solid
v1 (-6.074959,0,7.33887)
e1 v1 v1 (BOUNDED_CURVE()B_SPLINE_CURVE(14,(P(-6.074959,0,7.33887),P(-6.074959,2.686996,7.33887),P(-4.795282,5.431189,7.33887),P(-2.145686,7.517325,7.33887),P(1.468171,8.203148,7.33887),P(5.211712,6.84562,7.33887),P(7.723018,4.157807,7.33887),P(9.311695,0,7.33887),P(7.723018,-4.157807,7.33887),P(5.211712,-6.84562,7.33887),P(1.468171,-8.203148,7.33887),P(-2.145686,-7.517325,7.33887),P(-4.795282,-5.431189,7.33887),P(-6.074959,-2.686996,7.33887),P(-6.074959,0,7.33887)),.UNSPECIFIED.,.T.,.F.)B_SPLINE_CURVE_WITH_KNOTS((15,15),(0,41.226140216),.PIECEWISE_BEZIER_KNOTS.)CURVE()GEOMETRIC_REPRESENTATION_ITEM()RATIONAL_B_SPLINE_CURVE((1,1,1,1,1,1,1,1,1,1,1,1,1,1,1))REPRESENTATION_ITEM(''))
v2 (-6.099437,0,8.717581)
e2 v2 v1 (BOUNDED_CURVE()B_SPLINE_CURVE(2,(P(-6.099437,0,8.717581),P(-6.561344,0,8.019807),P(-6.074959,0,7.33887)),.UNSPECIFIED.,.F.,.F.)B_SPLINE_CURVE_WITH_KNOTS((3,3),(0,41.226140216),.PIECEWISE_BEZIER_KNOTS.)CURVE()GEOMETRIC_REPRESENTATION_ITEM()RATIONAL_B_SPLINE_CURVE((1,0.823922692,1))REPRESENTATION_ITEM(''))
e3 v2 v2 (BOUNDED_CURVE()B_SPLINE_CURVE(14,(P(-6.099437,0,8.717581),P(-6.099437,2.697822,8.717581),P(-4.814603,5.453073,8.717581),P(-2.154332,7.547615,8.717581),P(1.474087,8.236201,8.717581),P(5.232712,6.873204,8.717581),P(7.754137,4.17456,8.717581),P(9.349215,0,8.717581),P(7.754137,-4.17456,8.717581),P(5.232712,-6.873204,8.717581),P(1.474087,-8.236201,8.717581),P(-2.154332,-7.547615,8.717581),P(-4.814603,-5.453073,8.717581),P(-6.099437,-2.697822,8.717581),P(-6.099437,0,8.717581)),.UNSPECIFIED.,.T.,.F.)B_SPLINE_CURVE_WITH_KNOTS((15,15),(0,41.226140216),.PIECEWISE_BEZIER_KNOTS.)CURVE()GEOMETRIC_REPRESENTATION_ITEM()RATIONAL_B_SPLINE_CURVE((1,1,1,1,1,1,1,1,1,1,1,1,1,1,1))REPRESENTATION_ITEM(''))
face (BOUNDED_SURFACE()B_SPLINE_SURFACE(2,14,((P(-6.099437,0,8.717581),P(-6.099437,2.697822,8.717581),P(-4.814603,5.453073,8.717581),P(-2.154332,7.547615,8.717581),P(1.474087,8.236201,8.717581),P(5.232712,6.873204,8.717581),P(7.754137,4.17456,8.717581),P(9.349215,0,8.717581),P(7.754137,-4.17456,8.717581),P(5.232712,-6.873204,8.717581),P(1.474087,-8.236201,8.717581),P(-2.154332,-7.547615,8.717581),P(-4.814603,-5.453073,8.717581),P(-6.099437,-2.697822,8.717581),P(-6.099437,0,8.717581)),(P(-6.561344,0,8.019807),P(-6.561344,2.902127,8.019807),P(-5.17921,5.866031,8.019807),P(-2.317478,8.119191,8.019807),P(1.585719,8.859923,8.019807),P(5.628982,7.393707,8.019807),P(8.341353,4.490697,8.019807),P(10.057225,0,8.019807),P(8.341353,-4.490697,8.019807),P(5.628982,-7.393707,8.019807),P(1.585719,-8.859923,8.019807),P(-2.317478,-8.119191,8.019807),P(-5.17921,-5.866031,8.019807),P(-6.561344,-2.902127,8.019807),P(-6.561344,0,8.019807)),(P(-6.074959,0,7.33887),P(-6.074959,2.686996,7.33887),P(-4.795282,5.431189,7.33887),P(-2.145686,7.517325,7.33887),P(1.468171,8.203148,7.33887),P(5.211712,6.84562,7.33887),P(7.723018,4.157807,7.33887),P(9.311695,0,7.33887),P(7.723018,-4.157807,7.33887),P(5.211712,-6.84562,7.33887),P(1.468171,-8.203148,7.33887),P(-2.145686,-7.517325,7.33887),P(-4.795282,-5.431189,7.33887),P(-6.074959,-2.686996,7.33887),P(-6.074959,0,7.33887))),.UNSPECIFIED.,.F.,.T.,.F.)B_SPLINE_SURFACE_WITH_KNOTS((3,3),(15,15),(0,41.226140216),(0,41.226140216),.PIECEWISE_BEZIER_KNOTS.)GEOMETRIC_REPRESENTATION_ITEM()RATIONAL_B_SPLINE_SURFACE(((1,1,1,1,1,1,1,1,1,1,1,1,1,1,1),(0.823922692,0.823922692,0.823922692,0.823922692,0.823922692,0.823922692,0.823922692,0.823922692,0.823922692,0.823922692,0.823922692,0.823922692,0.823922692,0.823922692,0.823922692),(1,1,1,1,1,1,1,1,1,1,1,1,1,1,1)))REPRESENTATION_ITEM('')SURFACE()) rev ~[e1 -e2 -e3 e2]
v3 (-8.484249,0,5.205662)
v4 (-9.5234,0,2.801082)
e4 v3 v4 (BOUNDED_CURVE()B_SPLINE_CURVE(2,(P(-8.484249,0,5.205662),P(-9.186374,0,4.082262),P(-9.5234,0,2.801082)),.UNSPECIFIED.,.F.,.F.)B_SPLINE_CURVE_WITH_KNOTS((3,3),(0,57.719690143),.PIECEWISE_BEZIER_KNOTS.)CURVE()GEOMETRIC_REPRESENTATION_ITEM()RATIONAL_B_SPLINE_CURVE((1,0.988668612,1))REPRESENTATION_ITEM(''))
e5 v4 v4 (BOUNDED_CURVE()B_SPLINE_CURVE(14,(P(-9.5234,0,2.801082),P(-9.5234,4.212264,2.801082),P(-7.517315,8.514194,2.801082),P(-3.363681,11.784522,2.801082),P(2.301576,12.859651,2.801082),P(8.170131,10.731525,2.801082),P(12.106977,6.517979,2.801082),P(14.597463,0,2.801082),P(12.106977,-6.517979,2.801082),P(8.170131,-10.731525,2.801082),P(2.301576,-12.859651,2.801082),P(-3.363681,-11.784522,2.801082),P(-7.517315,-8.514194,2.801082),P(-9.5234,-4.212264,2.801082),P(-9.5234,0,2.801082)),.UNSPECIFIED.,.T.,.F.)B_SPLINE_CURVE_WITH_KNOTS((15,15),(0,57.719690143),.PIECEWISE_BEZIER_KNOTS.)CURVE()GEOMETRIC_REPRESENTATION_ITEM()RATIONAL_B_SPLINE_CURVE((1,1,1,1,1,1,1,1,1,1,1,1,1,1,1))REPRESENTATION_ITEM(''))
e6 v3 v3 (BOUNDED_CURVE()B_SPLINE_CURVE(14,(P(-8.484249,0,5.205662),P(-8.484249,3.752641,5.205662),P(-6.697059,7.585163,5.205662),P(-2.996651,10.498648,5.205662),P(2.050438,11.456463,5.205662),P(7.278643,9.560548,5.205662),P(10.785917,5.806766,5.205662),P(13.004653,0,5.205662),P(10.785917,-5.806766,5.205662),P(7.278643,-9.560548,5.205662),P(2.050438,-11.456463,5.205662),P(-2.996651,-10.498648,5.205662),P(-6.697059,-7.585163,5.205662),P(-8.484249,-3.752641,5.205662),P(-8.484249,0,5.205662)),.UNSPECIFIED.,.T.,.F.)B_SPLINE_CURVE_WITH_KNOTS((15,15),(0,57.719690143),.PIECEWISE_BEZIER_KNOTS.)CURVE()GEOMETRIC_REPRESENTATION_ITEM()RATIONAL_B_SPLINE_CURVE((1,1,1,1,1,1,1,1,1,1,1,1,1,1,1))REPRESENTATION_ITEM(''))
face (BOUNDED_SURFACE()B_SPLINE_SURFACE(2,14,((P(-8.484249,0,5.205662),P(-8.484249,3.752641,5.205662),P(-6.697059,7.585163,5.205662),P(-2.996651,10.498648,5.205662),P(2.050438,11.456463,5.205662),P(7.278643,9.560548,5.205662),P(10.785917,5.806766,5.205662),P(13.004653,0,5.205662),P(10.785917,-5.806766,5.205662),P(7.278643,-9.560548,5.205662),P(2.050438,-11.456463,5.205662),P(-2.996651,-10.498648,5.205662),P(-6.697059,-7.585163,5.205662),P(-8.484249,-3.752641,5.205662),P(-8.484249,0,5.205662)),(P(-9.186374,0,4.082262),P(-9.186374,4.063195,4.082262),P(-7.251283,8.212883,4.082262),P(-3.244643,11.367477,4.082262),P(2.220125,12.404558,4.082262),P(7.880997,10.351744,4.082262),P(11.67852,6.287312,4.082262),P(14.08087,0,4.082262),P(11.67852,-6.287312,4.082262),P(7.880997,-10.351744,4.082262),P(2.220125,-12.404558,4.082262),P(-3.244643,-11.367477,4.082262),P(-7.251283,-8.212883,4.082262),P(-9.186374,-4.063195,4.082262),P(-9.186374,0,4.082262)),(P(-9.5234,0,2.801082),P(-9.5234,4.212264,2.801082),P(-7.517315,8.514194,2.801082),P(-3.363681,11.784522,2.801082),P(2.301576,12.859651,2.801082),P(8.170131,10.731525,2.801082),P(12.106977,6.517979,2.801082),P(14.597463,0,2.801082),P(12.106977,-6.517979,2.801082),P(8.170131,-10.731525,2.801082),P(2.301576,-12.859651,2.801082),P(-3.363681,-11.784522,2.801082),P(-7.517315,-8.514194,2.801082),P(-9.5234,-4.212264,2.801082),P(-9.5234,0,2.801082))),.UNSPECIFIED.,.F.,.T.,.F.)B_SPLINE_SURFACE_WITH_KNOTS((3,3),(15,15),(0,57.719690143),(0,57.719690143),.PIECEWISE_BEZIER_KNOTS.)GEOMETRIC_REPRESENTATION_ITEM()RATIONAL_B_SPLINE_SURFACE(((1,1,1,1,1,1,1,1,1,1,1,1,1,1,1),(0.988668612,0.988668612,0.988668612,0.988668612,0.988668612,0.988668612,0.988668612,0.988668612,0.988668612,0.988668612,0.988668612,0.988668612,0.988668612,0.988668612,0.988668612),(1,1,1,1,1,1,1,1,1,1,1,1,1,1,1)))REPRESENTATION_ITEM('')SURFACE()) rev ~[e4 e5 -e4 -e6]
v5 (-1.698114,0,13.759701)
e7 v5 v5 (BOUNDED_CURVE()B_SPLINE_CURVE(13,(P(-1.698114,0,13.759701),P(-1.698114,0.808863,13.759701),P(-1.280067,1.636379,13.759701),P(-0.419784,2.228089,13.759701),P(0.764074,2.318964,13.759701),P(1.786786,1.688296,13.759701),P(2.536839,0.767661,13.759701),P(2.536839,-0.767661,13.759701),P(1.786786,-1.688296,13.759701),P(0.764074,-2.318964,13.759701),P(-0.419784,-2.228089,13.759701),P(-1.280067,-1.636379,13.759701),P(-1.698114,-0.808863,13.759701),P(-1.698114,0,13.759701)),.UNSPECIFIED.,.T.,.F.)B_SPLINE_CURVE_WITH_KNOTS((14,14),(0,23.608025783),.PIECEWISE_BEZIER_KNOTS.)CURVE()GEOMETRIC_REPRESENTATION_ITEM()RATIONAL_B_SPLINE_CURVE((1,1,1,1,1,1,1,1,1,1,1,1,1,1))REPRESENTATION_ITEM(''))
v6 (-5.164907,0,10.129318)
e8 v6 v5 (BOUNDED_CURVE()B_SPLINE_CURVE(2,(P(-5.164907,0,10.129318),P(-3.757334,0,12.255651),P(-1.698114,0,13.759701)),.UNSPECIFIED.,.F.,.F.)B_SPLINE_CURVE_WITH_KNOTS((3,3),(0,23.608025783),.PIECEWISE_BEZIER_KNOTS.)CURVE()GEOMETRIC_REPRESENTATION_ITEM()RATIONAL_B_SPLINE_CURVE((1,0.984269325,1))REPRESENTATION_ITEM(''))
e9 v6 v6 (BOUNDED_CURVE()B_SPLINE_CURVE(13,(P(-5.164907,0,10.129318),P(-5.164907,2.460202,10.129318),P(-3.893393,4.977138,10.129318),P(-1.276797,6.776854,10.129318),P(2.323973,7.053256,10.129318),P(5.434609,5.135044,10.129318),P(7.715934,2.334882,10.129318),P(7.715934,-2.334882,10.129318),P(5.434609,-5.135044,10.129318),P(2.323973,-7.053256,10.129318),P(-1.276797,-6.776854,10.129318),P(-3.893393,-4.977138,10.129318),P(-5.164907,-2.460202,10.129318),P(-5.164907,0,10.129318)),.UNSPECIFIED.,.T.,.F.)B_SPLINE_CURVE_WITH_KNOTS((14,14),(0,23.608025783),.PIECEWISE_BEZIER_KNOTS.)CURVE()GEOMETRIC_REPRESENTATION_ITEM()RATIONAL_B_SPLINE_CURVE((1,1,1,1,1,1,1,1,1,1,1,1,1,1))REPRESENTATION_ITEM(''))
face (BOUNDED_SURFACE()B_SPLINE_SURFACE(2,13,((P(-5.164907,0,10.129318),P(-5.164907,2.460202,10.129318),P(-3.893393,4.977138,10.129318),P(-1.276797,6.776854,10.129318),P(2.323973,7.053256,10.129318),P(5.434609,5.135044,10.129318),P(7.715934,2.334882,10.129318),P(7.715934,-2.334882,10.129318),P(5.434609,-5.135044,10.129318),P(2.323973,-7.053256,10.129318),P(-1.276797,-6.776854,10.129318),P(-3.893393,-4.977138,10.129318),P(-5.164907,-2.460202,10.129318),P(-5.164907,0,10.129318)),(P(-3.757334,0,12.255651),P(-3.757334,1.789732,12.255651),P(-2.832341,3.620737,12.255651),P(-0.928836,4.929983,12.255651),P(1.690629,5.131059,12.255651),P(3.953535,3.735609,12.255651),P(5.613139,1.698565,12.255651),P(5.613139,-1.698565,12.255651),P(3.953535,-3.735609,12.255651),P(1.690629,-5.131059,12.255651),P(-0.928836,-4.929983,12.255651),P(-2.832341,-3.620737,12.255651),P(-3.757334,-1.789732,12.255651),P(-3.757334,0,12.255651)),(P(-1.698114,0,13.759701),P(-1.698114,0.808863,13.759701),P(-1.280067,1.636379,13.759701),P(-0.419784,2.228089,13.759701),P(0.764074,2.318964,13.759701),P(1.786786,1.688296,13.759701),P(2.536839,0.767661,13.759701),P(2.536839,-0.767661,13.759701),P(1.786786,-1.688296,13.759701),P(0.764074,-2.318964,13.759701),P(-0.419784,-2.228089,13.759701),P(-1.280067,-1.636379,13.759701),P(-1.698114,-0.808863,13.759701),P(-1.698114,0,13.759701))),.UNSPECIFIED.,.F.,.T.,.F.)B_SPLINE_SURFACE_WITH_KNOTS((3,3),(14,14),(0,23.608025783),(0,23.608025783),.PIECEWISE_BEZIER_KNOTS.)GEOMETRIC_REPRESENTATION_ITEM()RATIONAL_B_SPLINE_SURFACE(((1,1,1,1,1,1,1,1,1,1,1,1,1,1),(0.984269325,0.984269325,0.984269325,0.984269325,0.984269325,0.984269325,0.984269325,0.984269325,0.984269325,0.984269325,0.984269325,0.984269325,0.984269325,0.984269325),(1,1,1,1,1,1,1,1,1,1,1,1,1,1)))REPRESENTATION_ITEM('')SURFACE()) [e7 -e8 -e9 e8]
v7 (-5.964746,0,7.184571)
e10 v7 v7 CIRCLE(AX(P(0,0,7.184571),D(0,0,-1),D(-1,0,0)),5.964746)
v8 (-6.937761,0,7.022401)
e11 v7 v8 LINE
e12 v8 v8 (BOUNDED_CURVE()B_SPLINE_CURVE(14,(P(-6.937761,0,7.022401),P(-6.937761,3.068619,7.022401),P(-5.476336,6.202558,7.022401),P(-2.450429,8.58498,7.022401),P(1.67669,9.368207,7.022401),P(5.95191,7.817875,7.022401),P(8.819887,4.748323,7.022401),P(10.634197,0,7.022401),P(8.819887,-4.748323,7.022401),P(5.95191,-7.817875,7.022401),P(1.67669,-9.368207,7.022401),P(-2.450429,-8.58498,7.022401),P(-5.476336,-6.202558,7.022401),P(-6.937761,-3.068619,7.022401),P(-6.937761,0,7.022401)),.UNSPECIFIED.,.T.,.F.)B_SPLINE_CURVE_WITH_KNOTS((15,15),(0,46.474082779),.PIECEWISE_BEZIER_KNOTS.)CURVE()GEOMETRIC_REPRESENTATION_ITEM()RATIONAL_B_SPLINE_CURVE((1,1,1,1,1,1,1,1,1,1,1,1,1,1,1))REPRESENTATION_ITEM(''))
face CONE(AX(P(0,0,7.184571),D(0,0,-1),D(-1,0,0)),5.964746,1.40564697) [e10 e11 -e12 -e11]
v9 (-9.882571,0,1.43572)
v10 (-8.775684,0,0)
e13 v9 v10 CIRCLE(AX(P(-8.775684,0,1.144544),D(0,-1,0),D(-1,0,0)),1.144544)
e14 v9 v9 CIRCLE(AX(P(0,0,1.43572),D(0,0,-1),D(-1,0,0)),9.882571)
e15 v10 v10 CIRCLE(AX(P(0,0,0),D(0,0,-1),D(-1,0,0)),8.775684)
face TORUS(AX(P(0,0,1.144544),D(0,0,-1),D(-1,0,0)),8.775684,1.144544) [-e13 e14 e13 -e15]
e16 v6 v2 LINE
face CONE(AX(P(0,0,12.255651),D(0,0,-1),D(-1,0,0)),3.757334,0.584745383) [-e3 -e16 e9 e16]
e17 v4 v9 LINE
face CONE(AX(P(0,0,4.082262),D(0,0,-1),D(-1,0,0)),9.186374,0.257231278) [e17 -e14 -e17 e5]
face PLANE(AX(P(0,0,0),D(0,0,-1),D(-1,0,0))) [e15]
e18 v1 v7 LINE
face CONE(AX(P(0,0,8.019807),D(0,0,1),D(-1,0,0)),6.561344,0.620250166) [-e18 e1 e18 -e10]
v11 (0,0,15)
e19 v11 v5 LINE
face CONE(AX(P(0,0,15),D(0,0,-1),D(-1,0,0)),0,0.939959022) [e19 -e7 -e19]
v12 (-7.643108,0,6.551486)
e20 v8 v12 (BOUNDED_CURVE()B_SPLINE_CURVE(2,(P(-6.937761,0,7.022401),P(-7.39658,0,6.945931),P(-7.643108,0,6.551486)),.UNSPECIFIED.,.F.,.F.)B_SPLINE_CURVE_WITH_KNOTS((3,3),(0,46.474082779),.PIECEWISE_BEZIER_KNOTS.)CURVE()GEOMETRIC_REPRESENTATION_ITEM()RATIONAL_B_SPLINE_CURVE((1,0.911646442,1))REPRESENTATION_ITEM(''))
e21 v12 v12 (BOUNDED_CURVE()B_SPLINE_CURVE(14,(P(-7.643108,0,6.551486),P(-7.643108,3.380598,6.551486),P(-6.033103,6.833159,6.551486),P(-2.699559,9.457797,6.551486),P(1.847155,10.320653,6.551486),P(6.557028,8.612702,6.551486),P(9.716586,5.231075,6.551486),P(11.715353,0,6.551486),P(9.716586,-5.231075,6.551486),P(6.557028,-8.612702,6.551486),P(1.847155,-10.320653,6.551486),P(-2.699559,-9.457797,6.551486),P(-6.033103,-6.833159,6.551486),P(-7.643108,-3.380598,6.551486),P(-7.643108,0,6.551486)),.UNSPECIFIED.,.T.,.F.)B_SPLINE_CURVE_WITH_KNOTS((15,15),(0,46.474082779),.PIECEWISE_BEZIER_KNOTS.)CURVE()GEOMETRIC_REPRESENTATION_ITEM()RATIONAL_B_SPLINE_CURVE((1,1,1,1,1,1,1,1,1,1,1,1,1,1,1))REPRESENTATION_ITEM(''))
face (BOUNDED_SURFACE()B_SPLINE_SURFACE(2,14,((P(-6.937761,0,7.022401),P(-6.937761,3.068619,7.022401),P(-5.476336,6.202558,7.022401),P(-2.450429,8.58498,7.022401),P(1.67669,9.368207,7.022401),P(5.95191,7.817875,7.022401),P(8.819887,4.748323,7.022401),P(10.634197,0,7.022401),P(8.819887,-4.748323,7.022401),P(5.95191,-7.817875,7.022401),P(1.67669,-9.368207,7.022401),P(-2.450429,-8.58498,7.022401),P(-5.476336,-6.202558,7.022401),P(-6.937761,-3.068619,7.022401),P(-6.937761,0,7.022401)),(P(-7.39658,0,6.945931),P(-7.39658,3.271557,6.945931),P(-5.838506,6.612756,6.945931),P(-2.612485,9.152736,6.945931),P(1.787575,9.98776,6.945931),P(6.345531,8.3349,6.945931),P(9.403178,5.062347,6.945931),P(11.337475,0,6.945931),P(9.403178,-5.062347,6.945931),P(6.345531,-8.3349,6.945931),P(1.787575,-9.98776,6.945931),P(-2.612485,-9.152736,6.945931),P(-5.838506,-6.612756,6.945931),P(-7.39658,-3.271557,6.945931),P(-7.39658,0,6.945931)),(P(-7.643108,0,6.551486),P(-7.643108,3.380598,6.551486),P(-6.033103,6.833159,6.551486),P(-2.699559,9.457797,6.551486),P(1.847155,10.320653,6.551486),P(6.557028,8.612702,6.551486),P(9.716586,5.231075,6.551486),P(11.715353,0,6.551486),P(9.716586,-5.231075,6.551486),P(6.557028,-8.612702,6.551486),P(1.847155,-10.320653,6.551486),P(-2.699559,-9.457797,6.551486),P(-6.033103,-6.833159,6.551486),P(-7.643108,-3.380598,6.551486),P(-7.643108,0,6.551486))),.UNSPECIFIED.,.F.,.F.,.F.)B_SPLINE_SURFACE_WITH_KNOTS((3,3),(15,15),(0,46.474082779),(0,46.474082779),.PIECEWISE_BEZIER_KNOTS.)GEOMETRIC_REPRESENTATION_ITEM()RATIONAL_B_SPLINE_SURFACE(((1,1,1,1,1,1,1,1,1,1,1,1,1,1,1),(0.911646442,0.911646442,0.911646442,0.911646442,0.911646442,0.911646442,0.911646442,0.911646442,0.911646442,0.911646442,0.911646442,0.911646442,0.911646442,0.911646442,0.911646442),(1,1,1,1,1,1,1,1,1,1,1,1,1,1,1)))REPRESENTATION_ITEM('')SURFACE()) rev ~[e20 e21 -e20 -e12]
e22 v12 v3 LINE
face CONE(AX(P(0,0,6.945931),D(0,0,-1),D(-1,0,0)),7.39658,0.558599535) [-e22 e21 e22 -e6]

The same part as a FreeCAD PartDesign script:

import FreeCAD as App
import Part
import Sketcher


def edges_at(feature, points):
    """Names of the edges that pass closest to the given points."""
    edges = feature.Shape.Edges
    near = lambda p: min(range(len(edges)), key=lambda i: edges[i].distToShape(Part.Vertex(*p))[0])
    return sorted({f"Edge{near(p) + 1}" for p in points})


def add_polygon(sketch, points):
    """Adds a closed chain of lines whose ends are joined by coincident constraints."""
    first, n = sketch.GeometryCount, len(points)
    for a, b in zip(points, points[1:] + points[:1]):
        sketch.addGeometry(Part.LineSegment(App.Vector(*a, 0), App.Vector(*b, 0)), False)
    for i in range(n):
        sketch.addConstraint(Sketcher.Constraint("Coincident", first + i, 2, first + (i + 1) % n, 1))

doc = App.newDocument("Part")
body = doc.addObject("PartDesign::Body", "Body")

# Sketch on XZ plane
sketch1 = body.newObject("Sketcher::SketchObject", "Sketch")
sketch1.AttachmentSupport = (doc.getObject("XZ_Plane"), [""])
sketch1.MapMode = "FlatFace"
add_polygon(sketch1, [(-10.3, 0), (0, 0), (0, 15), (-3.8, 12.3), (-6.6, 8), (-6, 7.2), (-7.4, 6.9), (-9.2, 4.1)])  # lines 0-7
sketch1.addConstraint(Sketcher.Constraint("Horizontal", 0))
sketch1.addConstraint(Sketcher.Constraint("Vertical", 1))
sketch1.addConstraint(Sketcher.Constraint("Coincident", 0, 2, -1, 1))
sketch1.addConstraint(Sketcher.Constraint("DistanceY", 1, 1, 1, 2, 15.0))
sketch1.addConstraint(Sketcher.Constraint("DistanceX", 0, 1, 0, 2, 10.26025))
sketch1.addConstraint(Sketcher.Constraint("DistanceX", 3, 2, 4, 2, 0.596598))
sketch1.addConstraint(Sketcher.Constraint("Distance", 2, 4.65285))
sketch1.addConstraint(Sketcher.Constraint("DistanceY", -1, 1, 2, 2, 12.255651))
sketch1.addConstraint(Sketcher.Constraint("DistanceY", -1, 1, 4, 2, 7.184571))
sketch1.addConstraint(Sketcher.Constraint("DistanceX", 5, 2, -1, 1, 7.39658))
sketch1.addConstraint(Sketcher.Constraint("DistanceY", -1, 1, 5, 2, 6.945931))
sketch1.addConstraint(Sketcher.Constraint("DistanceX", 3, 2, 2, 2, 2.80401))
sketch1.addConstraint(Sketcher.Constraint("DistanceY", 6, 2, 5, 2, 2.863669))
sketch1.addConstraint(Sketcher.Constraint("DistanceX", 6, 2, 4, 2, 3.221628))
sketch1.addConstraint(Sketcher.Constraint("Distance", 3, 5.079847))
revolution = body.newObject("PartDesign::Revolution", "Revolution")
revolution.Profile = sketch1
revolution.ReferenceAxis = (sketch1, ["V_Axis"])
revolution.Angle = 360
doc.recompute()

fillet = body.newObject("PartDesign::Fillet", "Fillet")
fillet.Base = (revolution, edges_at(revolution, [(6.561, 0, 8.02)]))
fillet.Radius = 1.216625
doc.recompute()

fillet2 = body.newObject("PartDesign::Fillet", "Fillet001")
fillet2.Base = (fillet, edges_at(fillet, [(7.397, 0, 6.946)]))
fillet2.Radius = 1.031815
doc.recompute()

fillet3 = body.newObject("PartDesign::Fillet", "Fillet002")
fillet3.Base = (fillet2, edges_at(fillet2, [(10.26, 0, 0)]))
fillet3.Radius = 1.144544
doc.recompute()

fillet4 = body.newObject("PartDesign::Fillet", "Fillet003")
fillet4.Base = (fillet3, edges_at(fillet3, [(3.757, 0, 12.256)]))
fillet4.Radius = 14.206331
doc.recompute()

fillet5 = body.newObject("PartDesign::Fillet", "Fillet004")
fillet5.Base = (fillet4, edges_at(fillet4, [(9.186, 0, 4.082)]))
fillet5.Radius = 8.725041

doc.recompute()
